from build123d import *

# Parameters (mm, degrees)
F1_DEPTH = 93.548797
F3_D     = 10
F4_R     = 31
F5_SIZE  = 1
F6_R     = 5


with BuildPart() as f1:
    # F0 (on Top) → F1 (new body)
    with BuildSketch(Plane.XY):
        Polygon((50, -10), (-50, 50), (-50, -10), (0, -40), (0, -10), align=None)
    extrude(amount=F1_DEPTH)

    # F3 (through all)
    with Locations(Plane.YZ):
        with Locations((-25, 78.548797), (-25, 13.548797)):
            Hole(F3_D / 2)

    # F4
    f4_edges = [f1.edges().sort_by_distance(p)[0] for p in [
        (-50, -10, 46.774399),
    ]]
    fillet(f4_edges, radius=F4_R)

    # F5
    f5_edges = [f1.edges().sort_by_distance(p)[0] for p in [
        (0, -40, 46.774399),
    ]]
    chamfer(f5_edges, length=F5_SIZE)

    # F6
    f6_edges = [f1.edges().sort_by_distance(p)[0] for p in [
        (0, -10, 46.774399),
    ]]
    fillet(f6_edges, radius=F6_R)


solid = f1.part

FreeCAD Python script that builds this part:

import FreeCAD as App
import Part
import Sketcher

V = App.Vector


def edges_at(feature, points):
    """Names of the edges that pass closest to the given points."""
    edges = feature.Shape.Edges
    near = lambda p: min(range(len(edges)), key=lambda i: edges[i].distToShape(Part.Vertex(*p))[0])
    return sorted({f"Edge{near(p) + 1}" for p in points})


def add_polygon(sketch, points):
    """Adds a closed chain of lines whose ends are joined by coincident constraints."""
    first, n = sketch.GeometryCount, len(points)
    for a, b in zip(points, points[1:] + points[:1]):
        sketch.addGeometry(Part.LineSegment(App.Vector(*a, 0), App.Vector(*b, 0)), False)
    for i in range(n):
        sketch.addConstraint(Sketcher.Constraint("Coincident", first + i, 2, first + (i + 1) % n, 1))

doc = App.newDocument("Part")
params = doc.addObject("Spreadsheet::Sheet", "Params")
for row, (alias, value) in enumerate([
    ("sketch1_width", "50 mm"),
    ("sketch1_height", "60 mm"),
    ("pad1_length", "93.548797 mm"),
    ("sketch2_diameter", "10 mm"),
    ("hole_diameter", "10 mm"),
    ("fillet_radius", "31 mm"),
    ("chamfer_size", "1 mm"),
    ("fillet2_radius", "5 mm"),
], start=1):
    params.set(f"A{row}", alias)
    params.set(f"B{row}", "=" + value)
    params.setAlias(f"B{row}", alias)

body = doc.addObject("PartDesign::Body", "Body")

# Sketch on XY plane
sketch1 = body.newObject("Sketcher::SketchObject", "Sketch")
sketch1.AttachmentSupport = (doc.getObject("XY_Plane"), [""])
sketch1.MapMode = "FlatFace"
add_polygon(sketch1, [(50, -10), (-50, 50), (-50, -10), (0, -40), (0, -10)])  # lines 0-4
sketch1.addConstraint(Sketcher.Constraint("Vertical", 1))
sketch1.addConstraint(Sketcher.Constraint("Vertical", 3))
sketch1.addConstraint(Sketcher.Constraint("Horizontal", 4))
sketch1.addConstraint(Sketcher.Constraint("Symmetric", 1, 2, 4, 2, -2))
sketch1.addConstraint(Sketcher.Constraint("PointOnObject", 2, 2, -2))
sketch1.addConstraint(Sketcher.Constraint("Parallel", 0, 2))
sketch1.addConstraint(Sketcher.Constraint("DistanceX", 4, 1, 4, 2, 50.0))
sketch1.addConstraint(Sketcher.Constraint("DistanceY", 1, 2, 1, 1, 60.0))
sketch1.addConstraint(Sketcher.Constraint("DistanceY", -1, 1, 0, 2, 50.0))
sketch1.setExpression("Constraints[11]", "Params.sketch1_width")
sketch1.setExpression("Constraints[12]", "Params.sketch1_height")
pad1 = body.newObject("PartDesign::Pad", "Pad")
pad1.Profile = sketch1
pad1.setExpression("Length", "Params.pad1_length")

# Sketch on YZ plane
sketch2 = body.newObject("Sketcher::SketchObject", "Sketch001")
sketch2.AttachmentSupport = (doc.getObject("YZ_Plane"), [""])
sketch2.MapMode = "FlatFace"
sketch2.addGeometry(Part.Circle(V(-25, 78.548797, 0), V(0, 0, 1), 5), False)
sketch2.addGeometry(Part.Circle(V(-25, 13.548797, 0), V(0, 0, 1), 5), False)
sketch2.addConstraint(Sketcher.Constraint("Equal", 0, 1))
sketch2.addConstraint(Sketcher.Constraint("Vertical", 0, 3, 1, 3))
sketch2.addConstraint(Sketcher.Constraint("Diameter", 0, 10.0))
sketch2.addConstraint(Sketcher.Constraint("DistanceX", 0, 3, -1, 1, 25.0))
sketch2.addConstraint(Sketcher.Constraint("DistanceY", 1, 3, 0, 3, 65.0))
sketch2.addConstraint(Sketcher.Constraint("DistanceY", -1, 1, 0, 3, 78.548797))
sketch2.setExpression("Constraints[2]", "Params.sketch2_diameter")
doc.recompute()
hole = body.newObject("PartDesign::Hole", "Hole")
hole.Profile = sketch2
hole.ThreadType = "None"
hole.setExpression("Diameter", "Params.hole_diameter")
hole.DepthType = "ThroughAll"
doc.recompute()

fillet = body.newObject("PartDesign::Fillet", "Fillet")
fillet.Base = (hole, edges_at(hole, [(-50, -10, 46.774)]))
fillet.setExpression("Radius", "Params.fillet_radius")
doc.recompute()

chamfer = body.newObject("PartDesign::Chamfer", "Chamfer")
chamfer.Base = (fillet, edges_at(fillet, [(0, -40, 46.774)]))
chamfer.setExpression("Size", "Params.chamfer_size")
doc.recompute()

fillet2 = body.newObject("PartDesign::Fillet", "Fillet001")
fillet2.Base = (chamfer, edges_at(chamfer, [(0, -10, 46.774)]))
fillet2.setExpression("Radius", "Params.fillet2_radius")

doc.recompute()
